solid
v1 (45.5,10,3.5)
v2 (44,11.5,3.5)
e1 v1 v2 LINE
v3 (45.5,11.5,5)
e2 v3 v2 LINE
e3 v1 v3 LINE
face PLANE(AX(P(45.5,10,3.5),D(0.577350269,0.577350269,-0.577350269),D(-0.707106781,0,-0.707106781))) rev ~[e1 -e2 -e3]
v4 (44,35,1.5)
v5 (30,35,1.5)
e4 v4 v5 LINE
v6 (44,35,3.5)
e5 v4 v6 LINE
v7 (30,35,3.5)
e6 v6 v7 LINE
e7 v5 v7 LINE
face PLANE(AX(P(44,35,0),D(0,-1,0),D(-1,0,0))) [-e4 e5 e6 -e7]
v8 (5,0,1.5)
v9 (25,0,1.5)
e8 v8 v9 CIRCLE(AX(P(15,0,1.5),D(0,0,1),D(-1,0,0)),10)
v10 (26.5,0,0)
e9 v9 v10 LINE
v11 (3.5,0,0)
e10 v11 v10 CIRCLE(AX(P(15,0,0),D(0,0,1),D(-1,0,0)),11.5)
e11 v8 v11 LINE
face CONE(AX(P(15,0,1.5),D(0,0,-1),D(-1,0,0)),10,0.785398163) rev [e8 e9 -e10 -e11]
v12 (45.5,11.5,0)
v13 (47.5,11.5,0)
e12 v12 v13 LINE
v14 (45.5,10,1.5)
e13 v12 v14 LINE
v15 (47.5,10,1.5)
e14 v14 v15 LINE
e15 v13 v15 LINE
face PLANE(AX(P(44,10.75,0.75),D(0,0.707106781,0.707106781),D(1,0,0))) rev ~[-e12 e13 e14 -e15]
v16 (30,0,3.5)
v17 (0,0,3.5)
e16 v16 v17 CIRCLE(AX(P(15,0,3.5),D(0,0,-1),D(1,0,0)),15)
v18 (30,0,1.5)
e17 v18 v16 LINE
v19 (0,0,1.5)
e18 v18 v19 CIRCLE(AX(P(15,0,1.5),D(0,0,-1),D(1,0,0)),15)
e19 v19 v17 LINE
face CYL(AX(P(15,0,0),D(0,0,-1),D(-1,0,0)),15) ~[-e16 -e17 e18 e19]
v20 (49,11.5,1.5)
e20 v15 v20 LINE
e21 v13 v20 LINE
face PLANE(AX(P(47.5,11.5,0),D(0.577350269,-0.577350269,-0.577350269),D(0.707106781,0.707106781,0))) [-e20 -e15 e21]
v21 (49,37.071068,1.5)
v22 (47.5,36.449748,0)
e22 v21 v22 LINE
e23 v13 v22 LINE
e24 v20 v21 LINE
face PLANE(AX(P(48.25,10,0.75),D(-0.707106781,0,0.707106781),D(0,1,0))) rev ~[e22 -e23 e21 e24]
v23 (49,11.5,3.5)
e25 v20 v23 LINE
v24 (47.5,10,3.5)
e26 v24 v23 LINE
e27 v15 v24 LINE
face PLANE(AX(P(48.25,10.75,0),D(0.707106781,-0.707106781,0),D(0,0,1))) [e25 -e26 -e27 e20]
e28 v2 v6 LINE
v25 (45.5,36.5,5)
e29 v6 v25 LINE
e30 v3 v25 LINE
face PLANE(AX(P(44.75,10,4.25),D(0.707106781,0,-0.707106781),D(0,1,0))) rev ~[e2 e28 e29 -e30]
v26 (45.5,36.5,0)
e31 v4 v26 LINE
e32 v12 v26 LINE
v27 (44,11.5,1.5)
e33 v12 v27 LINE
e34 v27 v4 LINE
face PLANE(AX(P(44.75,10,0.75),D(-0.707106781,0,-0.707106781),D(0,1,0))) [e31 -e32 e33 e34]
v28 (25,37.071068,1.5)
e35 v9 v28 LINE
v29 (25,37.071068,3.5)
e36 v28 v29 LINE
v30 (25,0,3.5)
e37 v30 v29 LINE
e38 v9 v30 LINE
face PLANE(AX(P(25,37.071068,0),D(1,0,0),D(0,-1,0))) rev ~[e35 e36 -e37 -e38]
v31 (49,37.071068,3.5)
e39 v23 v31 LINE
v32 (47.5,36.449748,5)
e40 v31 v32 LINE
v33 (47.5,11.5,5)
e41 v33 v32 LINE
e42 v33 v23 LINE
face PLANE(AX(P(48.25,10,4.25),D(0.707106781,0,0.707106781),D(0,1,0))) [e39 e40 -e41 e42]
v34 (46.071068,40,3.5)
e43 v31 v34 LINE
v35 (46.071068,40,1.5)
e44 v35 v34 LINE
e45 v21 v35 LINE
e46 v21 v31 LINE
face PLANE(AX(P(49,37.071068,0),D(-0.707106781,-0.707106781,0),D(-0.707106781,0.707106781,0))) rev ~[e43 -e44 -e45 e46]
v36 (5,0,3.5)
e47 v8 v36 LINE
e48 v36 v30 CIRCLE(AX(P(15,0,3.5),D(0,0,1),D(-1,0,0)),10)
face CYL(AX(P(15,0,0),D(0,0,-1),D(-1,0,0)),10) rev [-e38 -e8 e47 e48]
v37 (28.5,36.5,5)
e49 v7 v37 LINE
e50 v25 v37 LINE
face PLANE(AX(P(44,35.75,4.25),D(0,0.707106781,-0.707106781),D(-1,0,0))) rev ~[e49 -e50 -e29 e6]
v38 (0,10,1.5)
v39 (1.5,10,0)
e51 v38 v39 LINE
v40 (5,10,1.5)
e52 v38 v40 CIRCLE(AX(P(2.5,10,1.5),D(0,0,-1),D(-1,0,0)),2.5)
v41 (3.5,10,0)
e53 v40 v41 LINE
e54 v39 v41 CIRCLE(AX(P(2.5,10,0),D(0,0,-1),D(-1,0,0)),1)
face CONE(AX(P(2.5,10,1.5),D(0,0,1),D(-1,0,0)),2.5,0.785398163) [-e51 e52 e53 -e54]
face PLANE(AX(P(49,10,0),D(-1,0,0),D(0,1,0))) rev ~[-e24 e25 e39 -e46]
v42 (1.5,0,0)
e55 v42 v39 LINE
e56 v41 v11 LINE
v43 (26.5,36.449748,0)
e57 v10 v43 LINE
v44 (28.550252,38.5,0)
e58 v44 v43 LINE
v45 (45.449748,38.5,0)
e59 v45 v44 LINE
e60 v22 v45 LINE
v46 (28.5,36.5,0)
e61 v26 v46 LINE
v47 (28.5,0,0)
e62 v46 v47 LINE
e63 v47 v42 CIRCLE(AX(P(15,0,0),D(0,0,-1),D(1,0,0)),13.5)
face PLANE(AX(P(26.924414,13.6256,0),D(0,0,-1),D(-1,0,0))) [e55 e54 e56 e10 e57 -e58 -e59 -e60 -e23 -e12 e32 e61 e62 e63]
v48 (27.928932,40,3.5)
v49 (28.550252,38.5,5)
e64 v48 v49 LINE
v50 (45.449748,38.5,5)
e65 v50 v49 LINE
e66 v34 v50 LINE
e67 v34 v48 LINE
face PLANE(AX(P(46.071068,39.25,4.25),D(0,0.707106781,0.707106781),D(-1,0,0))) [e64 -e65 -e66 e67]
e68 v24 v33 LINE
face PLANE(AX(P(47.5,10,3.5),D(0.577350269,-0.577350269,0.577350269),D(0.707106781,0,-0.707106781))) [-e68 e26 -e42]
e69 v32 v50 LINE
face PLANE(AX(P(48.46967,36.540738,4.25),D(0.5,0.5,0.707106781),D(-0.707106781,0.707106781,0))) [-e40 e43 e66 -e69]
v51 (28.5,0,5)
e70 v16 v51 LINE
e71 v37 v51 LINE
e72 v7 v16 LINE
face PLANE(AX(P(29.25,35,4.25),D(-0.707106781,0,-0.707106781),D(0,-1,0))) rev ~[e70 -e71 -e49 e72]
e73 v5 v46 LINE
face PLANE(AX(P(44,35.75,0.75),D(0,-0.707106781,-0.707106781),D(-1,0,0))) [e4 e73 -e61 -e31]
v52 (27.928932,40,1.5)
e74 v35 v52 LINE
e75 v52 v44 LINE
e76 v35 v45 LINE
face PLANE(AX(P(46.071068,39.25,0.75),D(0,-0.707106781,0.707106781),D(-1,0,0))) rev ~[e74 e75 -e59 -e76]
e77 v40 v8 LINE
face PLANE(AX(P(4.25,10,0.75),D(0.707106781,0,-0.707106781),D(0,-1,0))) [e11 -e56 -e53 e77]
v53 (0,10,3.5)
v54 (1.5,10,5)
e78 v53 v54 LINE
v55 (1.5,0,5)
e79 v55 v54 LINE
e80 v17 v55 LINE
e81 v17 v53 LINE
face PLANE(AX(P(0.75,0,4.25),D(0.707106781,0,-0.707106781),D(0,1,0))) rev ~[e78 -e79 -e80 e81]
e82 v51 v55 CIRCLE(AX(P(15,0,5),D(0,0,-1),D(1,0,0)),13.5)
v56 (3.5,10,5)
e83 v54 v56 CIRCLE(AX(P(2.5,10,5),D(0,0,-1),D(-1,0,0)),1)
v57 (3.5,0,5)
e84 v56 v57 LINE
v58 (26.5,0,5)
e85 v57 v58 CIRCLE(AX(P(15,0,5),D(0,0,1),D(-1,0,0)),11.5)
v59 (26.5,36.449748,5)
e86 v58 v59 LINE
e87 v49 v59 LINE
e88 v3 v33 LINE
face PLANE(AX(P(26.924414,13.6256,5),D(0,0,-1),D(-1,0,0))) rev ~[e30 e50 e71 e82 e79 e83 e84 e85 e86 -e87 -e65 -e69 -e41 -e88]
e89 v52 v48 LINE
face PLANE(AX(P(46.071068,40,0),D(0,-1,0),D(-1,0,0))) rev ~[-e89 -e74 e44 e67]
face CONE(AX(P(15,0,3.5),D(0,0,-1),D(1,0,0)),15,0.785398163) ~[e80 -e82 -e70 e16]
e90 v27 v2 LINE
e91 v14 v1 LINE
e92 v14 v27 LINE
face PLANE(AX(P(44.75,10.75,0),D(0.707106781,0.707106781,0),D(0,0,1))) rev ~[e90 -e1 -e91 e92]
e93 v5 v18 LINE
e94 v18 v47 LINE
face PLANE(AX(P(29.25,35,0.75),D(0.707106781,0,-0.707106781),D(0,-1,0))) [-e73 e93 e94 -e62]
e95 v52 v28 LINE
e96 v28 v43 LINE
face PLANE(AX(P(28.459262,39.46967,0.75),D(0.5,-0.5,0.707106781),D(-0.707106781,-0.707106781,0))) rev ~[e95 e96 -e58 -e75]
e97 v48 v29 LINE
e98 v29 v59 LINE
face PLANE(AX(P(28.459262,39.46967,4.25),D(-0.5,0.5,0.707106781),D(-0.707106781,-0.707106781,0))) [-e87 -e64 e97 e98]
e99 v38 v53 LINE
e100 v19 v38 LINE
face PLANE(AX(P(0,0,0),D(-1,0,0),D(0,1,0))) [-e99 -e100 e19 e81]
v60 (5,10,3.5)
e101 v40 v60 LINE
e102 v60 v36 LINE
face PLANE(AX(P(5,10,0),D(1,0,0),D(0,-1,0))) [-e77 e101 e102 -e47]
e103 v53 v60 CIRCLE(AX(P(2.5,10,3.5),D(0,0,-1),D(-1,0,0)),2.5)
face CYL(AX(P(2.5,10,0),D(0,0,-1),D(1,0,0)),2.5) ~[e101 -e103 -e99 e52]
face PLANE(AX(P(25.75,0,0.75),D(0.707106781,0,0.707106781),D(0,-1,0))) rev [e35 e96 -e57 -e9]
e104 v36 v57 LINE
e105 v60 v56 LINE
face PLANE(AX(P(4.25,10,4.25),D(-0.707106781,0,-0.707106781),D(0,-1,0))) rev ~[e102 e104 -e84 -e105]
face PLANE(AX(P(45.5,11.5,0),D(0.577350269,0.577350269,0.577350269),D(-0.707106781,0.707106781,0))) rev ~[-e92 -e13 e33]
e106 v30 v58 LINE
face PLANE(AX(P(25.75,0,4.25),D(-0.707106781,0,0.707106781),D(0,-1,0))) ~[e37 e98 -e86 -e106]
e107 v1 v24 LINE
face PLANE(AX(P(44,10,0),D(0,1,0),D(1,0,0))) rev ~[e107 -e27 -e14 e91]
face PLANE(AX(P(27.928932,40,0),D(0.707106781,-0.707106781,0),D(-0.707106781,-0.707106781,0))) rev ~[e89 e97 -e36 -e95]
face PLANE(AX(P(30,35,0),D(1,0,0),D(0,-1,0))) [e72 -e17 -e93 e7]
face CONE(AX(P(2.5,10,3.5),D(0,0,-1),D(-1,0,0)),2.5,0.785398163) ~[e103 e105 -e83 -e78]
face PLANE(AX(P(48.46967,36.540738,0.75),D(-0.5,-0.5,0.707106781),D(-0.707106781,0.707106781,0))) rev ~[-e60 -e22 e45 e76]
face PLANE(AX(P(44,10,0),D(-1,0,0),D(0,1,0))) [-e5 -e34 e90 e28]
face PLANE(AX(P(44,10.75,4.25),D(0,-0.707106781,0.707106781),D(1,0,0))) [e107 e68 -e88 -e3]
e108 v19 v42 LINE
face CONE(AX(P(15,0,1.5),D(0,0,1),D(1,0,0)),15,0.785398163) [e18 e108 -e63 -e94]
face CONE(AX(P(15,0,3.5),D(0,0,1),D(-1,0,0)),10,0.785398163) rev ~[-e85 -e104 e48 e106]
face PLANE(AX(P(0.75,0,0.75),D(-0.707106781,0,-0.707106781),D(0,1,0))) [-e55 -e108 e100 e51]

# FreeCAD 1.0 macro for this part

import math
import FreeCAD as App
import Part
import Sketcher

V = App.Vector


def edges_at(feature, points):
    """Names of the edges that pass closest to the given points."""
    edges = feature.Shape.Edges
    near = lambda p: min(range(len(edges)), key=lambda i: edges[i].distToShape(Part.Vertex(*p))[0])
    return sorted({f"Edge{near(p) + 1}" for p in points})

doc = App.newDocument("Part")
body = doc.addObject("PartDesign::Body", "Body")

# Sketch on XY plane
sketch1 = doc.addObject("Sketcher::SketchObject", "Sketch")
body.addObject(sketch1)
sketch1.AttachmentSupport = (doc.XY_Plane, [""])
sketch1.MapMode = "FlatFace"
sketch1.addGeometry(Part.LineSegment(V(44, 35, 0), V(44, 10, 0)), False)
sketch1.addGeometry(Part.LineSegment(V(44, 10, 0), V(49, 10, 0)), False)
sketch1.addGeometry(Part.LineSegment(V(49, 10, 0), V(49, 37.071068, 0)), False)
sketch1.addGeometry(Part.LineSegment(V(49, 37.071068, 0), V(46.071068, 40, 0)), False)
sketch1.addGeometry(Part.LineSegment(V(46.071068, 40, 0), V(27.928932, 40, 0)), False)
sketch1.addGeometry(Part.LineSegment(V(27.928932, 40, 0), V(25, 37.071068, 0)), False)
sketch1.addGeometry(Part.LineSegment(V(25, 37.071068, 0), V(25, 0, 0)), False)
sketch1.addGeometry(Part.ArcOfCircle(Part.Circle(V(15, 0, 0), V(0, 0, 1), 10), math.radians(180), math.radians(360)), False)
sketch1.addGeometry(Part.LineSegment(V(5, 0, 0), V(5, 10, 0)), False)
sketch1.addGeometry(Part.ArcOfCircle(Part.Circle(V(2.5, 10, 0), V(0, 0, 1), 2.5), math.radians(0), math.radians(180)), False)
sketch1.addGeometry(Part.LineSegment(V(0, 10, 0), V(0, 0, 0)), False)
sketch1.addGeometry(Part.ArcOfCircle(Part.Circle(V(15, 0, 0), V(0, 0, 1), 15), math.radians(180), math.radians(360)), False)
sketch1.addGeometry(Part.LineSegment(V(30, 0, 0), V(30, 35, 0)), False)
sketch1.addGeometry(Part.LineSegment(V(30, 35, 0), V(44, 35, 0)), False)
sketch1.addConstraint(Sketcher.Constraint("Coincident", 0, 2, 1, 1))
sketch1.addConstraint(Sketcher.Constraint("Coincident", 1, 2, 2, 1))
sketch1.addConstraint(Sketcher.Constraint("Coincident", 2, 2, 3, 1))
sketch1.addConstraint(Sketcher.Constraint("Coincident", 3, 2, 4, 1))
sketch1.addConstraint(Sketcher.Constraint("Coincident", 4, 2, 5, 1))
sketch1.addConstraint(Sketcher.Constraint("Coincident", 5, 2, 6, 1))
sketch1.addConstraint(Sketcher.Constraint("Tangent", 6, 2, 7, 2))
sketch1.addConstraint(Sketcher.Constraint("Tangent", 7, 1, 8, 1))
sketch1.addConstraint(Sketcher.Constraint("Tangent", 8, 2, 9, 1))
sketch1.addConstraint(Sketcher.Constraint("Tangent", 9, 2, 10, 1))
sketch1.addConstraint(Sketcher.Constraint("Tangent", 10, 2, 11, 1))
sketch1.addConstraint(Sketcher.Constraint("Tangent", 11, 2, 12, 1))
sketch1.addConstraint(Sketcher.Constraint("Coincident", 12, 2, 13, 1))
sketch1.addConstraint(Sketcher.Constraint("Coincident", 13, 2, 0, 1))
sketch1.addConstraint(Sketcher.Constraint("Vertical", 0))
sketch1.addConstraint(Sketcher.Constraint("Horizontal", 1))
sketch1.addConstraint(Sketcher.Constraint("Vertical", 2))
sketch1.addConstraint(Sketcher.Constraint("Horizontal", 4))
sketch1.addConstraint(Sketcher.Constraint("Vertical", 6))
sketch1.addConstraint(Sketcher.Constraint("Vertical", 8))
sketch1.addConstraint(Sketcher.Constraint("Vertical", 10))
sketch1.addConstraint(Sketcher.Constraint("Vertical", 12))
sketch1.addConstraint(Sketcher.Constraint("Horizontal", 13))
sketch1.addConstraint(Sketcher.Constraint("Coincident", 10, 2, -1, 1))
sketch1.addConstraint(Sketcher.Constraint("Coincident", 11, 3, 7, 3))
sketch1.addConstraint(Sketcher.Constraint("Perpendicular", 3, 5))
sketch1.addConstraint(Sketcher.Constraint("Horizontal", 9, 3, 0, 2))
sketch1.addConstraint(Sketcher.Constraint("Horizontal", 2, 2, 5, 2))
sketch1.addConstraint(Sketcher.Constraint("Equal", 3, 5))
sketch1.addConstraint(Sketcher.Constraint("Radius", 7, 10.0))
sketch1.addConstraint(Sketcher.Constraint("Radius", 11, 15.0))
sketch1.addConstraint(Sketcher.Constraint("DistanceX", 1, 1, 1, 2, 5.0))
sketch1.addConstraint(Sketcher.Constraint("DistanceX", 13, 1, 13, 2, 14.0))
sketch1.addConstraint(Sketcher.Constraint("DistanceY", 0, 2, 0, 1, 25.0))
sketch1.addConstraint(Sketcher.Constraint("DistanceY", 8, 1, 8, 2, 10.0))
sketch1.addConstraint(Sketcher.Constraint("DistanceY", -1, 1, 3, 2, 40.0))
sketch1.addConstraint(Sketcher.Constraint("DistanceX", 4, 2, 4, 1, 18.142136))
pad1 = doc.addObject("PartDesign::Pad", "Pad")
body.addObject(pad1)
pad1.Profile = sketch1
pad1.Length = 5
doc.recompute()

chamfer = doc.addObject("PartDesign::Chamfer", "Chamfer")
body.addObject(chamfer)
chamfer.Base = (pad1, edges_at(pad1, [
    (44, 22.5, 5),
    (37, 35, 5),
    (30, 17.5, 5),
    (15, -15, 5),
    (0, 5, 5),
    (2.5, 12.5, 5),
    (5, 5, 5),
    (15, -10, 5),
    (25, 18.536, 5),
    (26.464, 38.536, 5),
    (37, 40, 5),
    (47.536, 38.536, 5),
    (49, 23.536, 5),
    (46.5, 10, 5),
    (44, 10, 2.5),
    (49, 10, 2.5),
    (46.5, 10, 0),
    (44, 22.5, 0),
    (37, 35, 0),
    (30, 17.5, 0),
    (15, -15, 0),
    (0, 5, 0),
    (2.5, 12.5, 0),
    (5, 5, 0),
    (15, -10, 0),
    (25, 18.536, 0),
    (26.464, 38.536, 0),
    (37, 40, 0),
    (47.536, 38.536, 0),
    (49, 23.536, 0),
]))
chamfer.Size = 1.5

doc.recompute()
